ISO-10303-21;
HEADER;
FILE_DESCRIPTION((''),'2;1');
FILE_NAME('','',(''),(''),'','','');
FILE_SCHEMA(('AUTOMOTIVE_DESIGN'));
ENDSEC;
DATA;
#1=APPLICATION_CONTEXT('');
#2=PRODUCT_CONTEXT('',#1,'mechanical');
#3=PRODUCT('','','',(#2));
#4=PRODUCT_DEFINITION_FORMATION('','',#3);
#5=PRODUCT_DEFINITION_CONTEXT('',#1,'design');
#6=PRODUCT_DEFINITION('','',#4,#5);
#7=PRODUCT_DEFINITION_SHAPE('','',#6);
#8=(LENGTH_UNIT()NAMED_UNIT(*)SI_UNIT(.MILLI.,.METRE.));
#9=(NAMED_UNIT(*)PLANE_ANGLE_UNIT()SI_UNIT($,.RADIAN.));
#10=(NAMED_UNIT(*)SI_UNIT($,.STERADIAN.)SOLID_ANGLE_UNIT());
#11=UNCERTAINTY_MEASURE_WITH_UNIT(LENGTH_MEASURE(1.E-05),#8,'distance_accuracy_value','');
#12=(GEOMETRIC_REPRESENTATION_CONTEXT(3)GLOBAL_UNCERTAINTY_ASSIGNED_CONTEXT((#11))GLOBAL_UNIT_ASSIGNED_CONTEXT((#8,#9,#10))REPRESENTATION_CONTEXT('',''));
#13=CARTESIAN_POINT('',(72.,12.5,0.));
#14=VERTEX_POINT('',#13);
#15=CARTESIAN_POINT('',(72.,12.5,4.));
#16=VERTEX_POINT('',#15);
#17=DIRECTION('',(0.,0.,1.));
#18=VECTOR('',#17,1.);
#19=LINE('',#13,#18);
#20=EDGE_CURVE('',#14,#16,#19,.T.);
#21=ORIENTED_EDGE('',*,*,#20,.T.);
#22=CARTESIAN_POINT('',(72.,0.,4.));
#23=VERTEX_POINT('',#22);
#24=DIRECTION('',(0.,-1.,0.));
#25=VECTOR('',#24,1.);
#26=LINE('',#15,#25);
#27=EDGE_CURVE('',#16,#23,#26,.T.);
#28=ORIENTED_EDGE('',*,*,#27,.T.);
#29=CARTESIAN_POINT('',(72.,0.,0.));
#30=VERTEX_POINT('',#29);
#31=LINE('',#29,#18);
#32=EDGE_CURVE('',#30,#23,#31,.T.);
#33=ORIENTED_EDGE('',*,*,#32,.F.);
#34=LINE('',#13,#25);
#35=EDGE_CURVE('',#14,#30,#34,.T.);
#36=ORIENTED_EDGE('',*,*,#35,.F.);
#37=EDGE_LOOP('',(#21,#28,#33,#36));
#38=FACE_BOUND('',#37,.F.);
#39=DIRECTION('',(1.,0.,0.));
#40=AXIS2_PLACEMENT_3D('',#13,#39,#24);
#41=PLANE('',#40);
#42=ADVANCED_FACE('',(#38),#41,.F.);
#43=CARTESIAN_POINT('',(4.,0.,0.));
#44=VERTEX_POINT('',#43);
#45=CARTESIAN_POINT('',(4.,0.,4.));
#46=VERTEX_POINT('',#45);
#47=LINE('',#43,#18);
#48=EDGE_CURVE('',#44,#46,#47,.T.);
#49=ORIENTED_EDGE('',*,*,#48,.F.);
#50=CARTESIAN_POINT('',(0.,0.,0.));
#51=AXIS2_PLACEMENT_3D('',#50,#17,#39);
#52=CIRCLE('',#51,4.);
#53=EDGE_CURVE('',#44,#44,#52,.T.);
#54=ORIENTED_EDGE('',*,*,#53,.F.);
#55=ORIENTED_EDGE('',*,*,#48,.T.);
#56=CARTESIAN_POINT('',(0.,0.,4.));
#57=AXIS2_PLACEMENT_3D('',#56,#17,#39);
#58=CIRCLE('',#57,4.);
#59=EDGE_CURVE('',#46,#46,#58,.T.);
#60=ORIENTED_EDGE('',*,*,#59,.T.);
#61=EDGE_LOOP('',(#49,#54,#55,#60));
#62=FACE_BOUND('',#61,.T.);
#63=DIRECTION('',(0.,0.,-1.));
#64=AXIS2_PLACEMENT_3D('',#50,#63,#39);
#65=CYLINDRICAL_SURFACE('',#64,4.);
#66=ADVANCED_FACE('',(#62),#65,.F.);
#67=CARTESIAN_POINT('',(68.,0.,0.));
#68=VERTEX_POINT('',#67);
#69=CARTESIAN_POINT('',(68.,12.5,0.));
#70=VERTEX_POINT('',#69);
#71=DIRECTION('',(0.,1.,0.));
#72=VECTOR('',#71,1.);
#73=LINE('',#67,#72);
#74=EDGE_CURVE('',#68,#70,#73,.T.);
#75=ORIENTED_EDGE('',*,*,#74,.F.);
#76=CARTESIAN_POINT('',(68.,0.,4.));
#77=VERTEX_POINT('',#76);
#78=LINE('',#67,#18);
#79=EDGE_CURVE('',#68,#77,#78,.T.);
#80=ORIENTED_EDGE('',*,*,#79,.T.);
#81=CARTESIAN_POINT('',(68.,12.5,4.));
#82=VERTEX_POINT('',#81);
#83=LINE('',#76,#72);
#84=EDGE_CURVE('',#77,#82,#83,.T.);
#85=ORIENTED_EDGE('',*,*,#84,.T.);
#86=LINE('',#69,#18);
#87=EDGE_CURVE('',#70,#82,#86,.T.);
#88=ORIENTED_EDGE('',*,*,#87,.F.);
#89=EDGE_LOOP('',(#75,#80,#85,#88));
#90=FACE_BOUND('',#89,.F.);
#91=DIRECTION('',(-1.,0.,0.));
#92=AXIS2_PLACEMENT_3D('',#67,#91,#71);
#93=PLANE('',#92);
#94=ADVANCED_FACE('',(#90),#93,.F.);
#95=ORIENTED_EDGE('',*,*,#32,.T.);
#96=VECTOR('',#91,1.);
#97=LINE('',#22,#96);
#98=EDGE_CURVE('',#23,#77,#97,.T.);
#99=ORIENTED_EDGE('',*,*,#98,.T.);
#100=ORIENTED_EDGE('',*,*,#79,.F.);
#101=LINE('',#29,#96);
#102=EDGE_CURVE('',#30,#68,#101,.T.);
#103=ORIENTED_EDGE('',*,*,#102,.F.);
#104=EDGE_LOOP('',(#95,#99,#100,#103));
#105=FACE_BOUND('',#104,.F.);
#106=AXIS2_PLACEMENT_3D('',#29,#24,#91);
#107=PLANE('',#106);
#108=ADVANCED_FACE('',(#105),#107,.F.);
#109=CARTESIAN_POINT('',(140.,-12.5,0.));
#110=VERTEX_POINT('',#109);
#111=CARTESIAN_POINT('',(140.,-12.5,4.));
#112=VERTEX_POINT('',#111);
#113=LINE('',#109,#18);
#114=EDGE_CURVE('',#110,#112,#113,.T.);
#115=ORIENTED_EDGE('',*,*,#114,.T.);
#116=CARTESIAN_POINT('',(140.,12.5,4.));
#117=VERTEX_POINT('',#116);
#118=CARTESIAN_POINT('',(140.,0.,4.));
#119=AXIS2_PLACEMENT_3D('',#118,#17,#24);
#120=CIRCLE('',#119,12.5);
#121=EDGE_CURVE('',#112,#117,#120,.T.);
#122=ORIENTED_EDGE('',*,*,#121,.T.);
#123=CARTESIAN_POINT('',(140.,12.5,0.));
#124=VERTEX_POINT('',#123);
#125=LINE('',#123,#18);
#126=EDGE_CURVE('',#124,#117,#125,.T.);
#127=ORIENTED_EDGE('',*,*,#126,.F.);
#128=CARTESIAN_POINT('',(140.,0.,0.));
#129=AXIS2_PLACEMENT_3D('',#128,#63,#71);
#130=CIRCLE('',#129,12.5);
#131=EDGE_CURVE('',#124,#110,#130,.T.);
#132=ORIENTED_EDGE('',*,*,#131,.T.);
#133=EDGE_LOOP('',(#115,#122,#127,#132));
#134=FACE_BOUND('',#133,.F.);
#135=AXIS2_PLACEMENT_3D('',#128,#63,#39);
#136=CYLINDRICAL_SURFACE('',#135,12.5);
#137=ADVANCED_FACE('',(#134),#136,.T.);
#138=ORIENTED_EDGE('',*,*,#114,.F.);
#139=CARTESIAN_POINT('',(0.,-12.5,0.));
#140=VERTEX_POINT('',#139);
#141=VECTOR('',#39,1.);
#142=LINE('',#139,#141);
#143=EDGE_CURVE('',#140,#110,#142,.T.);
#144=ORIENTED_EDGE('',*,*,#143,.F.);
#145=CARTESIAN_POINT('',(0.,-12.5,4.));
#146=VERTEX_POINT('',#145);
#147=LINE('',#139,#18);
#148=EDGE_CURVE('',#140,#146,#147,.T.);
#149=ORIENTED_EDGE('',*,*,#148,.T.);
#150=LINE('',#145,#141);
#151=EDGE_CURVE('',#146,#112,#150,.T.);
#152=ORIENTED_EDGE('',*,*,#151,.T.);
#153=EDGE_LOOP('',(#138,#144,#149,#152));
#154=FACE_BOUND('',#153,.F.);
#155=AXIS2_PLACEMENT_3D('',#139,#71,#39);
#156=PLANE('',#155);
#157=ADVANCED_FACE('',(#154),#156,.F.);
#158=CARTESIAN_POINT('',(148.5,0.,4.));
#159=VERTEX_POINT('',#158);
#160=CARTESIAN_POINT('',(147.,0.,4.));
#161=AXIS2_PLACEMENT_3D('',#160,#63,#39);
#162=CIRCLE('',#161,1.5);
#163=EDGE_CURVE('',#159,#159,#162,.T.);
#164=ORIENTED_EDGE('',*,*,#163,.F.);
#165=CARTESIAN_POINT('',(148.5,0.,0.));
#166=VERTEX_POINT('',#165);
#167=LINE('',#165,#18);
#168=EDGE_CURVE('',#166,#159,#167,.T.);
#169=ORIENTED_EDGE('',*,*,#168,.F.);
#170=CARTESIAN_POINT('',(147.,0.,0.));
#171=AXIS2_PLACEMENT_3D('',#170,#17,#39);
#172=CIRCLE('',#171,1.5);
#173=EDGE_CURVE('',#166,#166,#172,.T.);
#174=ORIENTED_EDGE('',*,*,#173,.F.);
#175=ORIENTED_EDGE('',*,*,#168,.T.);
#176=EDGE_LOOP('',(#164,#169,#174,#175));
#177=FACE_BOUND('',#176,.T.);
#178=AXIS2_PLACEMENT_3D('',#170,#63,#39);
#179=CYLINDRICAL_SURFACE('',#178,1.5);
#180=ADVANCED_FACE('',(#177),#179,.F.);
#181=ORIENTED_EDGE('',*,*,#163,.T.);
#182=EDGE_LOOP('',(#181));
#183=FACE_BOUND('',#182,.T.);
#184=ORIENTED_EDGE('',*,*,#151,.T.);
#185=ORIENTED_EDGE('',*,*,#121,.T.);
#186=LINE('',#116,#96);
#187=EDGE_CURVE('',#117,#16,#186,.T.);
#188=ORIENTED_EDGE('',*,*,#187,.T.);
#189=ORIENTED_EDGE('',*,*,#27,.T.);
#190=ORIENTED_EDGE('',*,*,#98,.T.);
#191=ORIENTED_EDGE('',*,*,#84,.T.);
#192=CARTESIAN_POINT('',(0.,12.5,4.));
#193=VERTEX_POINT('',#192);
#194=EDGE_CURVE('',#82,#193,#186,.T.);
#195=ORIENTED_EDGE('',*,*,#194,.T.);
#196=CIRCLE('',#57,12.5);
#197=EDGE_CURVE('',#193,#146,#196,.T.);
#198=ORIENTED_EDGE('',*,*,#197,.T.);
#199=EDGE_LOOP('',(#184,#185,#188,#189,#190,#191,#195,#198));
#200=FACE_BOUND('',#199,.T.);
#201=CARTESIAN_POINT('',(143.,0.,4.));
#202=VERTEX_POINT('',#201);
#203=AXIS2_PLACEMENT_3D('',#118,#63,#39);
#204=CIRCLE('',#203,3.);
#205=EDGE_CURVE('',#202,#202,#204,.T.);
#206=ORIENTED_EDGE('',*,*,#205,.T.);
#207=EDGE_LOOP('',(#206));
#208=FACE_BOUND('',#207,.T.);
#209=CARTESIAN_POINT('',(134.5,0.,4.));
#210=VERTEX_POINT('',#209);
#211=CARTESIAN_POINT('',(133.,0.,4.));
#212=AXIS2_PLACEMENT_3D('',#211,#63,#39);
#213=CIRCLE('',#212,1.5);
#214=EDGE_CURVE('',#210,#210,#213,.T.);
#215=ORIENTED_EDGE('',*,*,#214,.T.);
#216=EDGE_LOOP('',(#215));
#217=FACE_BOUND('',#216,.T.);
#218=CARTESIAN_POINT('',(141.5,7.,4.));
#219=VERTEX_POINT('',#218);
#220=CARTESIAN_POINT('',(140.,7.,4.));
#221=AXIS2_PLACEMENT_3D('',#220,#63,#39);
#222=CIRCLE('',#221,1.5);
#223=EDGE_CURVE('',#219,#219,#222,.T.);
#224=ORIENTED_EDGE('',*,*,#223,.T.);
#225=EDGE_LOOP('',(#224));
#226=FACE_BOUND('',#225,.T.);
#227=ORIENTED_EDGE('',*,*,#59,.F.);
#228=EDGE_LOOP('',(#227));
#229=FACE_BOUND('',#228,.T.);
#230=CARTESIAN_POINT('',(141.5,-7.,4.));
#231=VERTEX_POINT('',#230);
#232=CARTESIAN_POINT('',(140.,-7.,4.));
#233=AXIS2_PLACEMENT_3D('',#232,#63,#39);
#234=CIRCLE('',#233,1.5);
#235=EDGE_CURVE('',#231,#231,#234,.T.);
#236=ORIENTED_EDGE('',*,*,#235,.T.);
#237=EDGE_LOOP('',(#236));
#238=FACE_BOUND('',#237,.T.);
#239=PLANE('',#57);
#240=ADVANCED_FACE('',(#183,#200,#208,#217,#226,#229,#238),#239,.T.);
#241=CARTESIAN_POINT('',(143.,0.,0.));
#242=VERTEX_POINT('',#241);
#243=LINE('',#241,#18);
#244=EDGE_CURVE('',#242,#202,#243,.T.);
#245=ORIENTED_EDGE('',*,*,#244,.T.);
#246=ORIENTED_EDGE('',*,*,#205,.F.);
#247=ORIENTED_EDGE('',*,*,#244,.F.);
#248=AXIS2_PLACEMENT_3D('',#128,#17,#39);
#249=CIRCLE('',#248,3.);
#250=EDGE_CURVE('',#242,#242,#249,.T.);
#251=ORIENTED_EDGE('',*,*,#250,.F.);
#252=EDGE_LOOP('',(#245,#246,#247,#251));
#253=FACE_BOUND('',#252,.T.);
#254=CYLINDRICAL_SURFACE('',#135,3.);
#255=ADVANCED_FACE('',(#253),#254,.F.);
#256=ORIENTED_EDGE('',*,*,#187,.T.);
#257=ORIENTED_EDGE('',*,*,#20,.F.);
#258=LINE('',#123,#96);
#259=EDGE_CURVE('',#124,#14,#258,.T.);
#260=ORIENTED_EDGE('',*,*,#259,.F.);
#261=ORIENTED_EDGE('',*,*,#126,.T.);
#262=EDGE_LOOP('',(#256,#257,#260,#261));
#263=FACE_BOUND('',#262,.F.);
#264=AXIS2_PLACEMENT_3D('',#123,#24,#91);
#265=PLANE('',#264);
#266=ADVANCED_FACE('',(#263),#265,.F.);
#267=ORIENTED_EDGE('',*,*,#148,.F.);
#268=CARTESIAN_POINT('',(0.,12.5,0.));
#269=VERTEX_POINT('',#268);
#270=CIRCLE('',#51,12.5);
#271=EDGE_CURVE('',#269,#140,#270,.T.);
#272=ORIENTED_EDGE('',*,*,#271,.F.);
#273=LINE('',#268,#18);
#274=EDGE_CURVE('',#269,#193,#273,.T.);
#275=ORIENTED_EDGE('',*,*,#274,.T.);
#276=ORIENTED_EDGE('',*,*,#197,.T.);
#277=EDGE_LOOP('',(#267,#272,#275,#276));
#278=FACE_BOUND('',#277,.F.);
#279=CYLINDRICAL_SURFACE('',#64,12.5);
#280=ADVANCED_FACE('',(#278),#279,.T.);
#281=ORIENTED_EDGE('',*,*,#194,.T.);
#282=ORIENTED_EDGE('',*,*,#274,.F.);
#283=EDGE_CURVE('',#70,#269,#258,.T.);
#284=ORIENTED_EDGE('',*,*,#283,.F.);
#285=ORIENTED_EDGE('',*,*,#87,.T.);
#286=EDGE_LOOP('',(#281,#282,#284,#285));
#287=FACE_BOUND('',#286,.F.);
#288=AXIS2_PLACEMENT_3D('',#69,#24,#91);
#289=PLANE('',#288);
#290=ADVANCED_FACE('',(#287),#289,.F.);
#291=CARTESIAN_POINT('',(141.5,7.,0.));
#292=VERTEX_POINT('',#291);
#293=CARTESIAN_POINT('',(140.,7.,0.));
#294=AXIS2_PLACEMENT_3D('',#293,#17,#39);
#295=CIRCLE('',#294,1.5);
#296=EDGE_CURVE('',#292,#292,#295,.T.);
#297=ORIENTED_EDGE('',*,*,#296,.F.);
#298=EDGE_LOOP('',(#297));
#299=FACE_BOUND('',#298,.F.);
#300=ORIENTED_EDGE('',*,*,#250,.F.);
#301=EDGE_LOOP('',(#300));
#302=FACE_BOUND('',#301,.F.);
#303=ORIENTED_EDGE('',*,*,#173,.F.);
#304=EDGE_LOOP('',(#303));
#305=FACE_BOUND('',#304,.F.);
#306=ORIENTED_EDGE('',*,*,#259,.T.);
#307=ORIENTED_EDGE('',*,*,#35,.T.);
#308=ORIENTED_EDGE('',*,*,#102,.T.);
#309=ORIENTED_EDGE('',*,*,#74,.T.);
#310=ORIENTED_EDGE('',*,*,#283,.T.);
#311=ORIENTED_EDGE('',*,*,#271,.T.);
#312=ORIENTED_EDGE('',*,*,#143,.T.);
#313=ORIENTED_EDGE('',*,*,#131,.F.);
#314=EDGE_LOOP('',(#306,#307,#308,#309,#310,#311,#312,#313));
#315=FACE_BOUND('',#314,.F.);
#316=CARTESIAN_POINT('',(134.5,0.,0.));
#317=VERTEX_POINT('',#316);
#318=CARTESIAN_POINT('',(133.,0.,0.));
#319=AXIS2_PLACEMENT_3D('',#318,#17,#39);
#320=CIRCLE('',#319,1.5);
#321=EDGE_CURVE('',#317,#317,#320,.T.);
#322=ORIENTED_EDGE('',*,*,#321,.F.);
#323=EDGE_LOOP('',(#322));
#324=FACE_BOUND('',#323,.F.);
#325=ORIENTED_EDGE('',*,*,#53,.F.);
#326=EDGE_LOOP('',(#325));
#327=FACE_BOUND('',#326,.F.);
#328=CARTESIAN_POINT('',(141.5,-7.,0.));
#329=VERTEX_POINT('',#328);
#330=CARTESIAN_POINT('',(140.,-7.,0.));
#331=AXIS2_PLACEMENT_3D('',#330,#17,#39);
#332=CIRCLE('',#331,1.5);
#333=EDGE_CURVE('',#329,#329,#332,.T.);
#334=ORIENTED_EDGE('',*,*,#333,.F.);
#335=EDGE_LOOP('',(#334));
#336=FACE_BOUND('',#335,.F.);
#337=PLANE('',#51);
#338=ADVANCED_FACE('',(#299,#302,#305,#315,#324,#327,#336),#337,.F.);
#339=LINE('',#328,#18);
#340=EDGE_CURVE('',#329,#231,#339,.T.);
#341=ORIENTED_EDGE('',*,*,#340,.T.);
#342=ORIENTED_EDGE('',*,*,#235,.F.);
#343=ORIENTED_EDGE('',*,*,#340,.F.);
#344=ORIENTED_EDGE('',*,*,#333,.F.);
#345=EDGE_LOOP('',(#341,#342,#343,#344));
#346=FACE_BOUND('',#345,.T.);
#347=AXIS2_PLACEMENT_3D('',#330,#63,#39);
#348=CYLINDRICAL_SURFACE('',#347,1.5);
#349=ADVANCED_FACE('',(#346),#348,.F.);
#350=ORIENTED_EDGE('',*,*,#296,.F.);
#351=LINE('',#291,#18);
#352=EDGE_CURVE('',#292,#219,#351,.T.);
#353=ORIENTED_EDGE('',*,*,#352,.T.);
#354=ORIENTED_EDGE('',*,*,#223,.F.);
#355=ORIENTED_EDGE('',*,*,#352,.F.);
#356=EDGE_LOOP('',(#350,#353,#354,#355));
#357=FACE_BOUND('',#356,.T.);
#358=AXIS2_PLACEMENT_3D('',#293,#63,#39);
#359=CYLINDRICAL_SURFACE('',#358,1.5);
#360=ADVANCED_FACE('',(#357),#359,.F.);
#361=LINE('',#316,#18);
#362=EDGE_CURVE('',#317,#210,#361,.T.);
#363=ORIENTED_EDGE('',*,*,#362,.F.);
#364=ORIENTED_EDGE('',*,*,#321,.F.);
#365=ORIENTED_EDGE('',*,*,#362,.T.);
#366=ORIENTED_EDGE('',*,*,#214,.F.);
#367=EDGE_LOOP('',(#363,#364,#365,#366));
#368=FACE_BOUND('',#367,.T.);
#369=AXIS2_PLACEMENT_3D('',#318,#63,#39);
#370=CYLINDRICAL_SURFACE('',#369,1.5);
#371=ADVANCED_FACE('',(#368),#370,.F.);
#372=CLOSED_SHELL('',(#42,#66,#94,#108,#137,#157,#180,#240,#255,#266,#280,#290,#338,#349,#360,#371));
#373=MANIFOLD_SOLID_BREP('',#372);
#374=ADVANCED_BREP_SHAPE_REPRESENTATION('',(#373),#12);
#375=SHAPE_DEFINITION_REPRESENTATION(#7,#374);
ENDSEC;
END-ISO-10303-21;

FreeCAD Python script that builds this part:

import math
import FreeCAD as App
import Part
import Sketcher
Q = App.Units.Quantity

doc = App.newDocument("Part")
params = doc.addObject("Spreadsheet::Sheet", "Params")
for row, (alias, value) in enumerate([
    ("sketch1_diameter", "8 mm"),
    ("sketch1_diameter2", "3 mm"),
    ("sketch1_diameter3", "6 mm"),
    ("sketch1_radius", "12.5 mm"),
    ("sketch1_width", "140 mm"),
    ("pad1_length", "4 mm"),
], start=1):
    params.set(f"A{row}", alias)
    params.set(f"B{row}", "=" + value)
    params.setAlias(f"B{row}", alias)

body = doc.addObject("PartDesign::Body", "Body")

sketch1 = body.newObject("Sketcher::SketchObject", "Sketch")
sketch1.AttachmentSupport = (doc.getObject("XY_Plane"), [""])
sketch1.MapMode = "FlatFace"
sketch1.addGeometry(Part.LineSegment(App.Vector(0, -12.5, 0), App.Vector(140, -12.5, 0)), False)
sketch1.addGeometry(Part.ArcOfCircle(Part.Circle(App.Vector(140, 0, 0), App.Vector(0, 0, 1), 12.5), math.radians(-90), math.radians(90)), False)
sketch1.addGeometry(Part.LineSegment(App.Vector(140, 12.5, 0), App.Vector(72, 12.5, 0)), False)
sketch1.addGeometry(Part.LineSegment(App.Vector(72, 12.5, 0), App.Vector(72, 0, 0)), False)
sketch1.addGeometry(Part.LineSegment(App.Vector(72, 0, 0), App.Vector(68, 0, 0)), False)
sketch1.addGeometry(Part.LineSegment(App.Vector(68, 0, 0), App.Vector(68, 12.5, 0)), False)
sketch1.addGeometry(Part.LineSegment(App.Vector(68, 12.5, 0), App.Vector(0, 12.5, 0)), False)
sketch1.addGeometry(Part.ArcOfCircle(Part.Circle(App.Vector(0, 0, 0), App.Vector(0, 0, 1), 12.5), math.radians(90), math.radians(270)), False)
sketch1.addGeometry(Part.Circle(App.Vector(0, 0, 0), App.Vector(0, 0, 1), 4), False)
sketch1.addGeometry(Part.Circle(App.Vector(140, 7, 0), App.Vector(0, 0, 1), 1.5), False)
sketch1.addGeometry(Part.Circle(App.Vector(133, 0, 0), App.Vector(0, 0, 1), 1.5), False)
sketch1.addGeometry(Part.Circle(App.Vector(140, -7, 0), App.Vector(0, 0, 1), 1.5), False)
sketch1.addGeometry(Part.Circle(App.Vector(147, 0, 0), App.Vector(0, 0, 1), 1.5), False)
sketch1.addGeometry(Part.Circle(App.Vector(140, 0, 0), App.Vector(0, 0, 1), 3), False)
sketch1.addConstraint(Sketcher.Constraint("Tangent", 0, 2, 1, 1))
sketch1.addConstraint(Sketcher.Constraint("Tangent", 1, 2, 2, 1))
sketch1.addConstraint(Sketcher.Constraint("Coincident", 2, 2, 3, 1))
sketch1.addConstraint(Sketcher.Constraint("Coincident", 3, 2, 4, 1))
sketch1.addConstraint(Sketcher.Constraint("Coincident", 4, 2, 5, 1))
sketch1.addConstraint(Sketcher.Constraint("Coincident", 5, 2, 6, 1))
sketch1.addConstraint(Sketcher.Constraint("Tangent", 6, 2, 7, 1))
sketch1.addConstraint(Sketcher.Constraint("Tangent", 7, 2, 0, 1))
sketch1.addConstraint(Sketcher.Constraint("Horizontal", 0))
sketch1.addConstraint(Sketcher.Constraint("Horizontal", 2))
sketch1.addConstraint(Sketcher.Constraint("Vertical", 3))
sketch1.addConstraint(Sketcher.Constraint("Horizontal", 4))
sketch1.addConstraint(Sketcher.Constraint("Vertical", 5))
sketch1.addConstraint(Sketcher.Constraint("Horizontal", 6))
sketch1.addConstraint(Sketcher.Constraint("Coincident", 7, 3, -1, 1))
sketch1.addConstraint(Sketcher.Constraint("Coincident", 8, 3, -1, 1))
sketch1.addConstraint(Sketcher.Constraint("Coincident", 13, 3, 1, 3))
sketch1.addConstraint(Sketcher.Constraint("Equal", 1, 7))
sketch1.addConstraint(Sketcher.Constraint("Equal", 9, 10))
sketch1.addConstraint(Sketcher.Constraint("Equal", 10, 11))
sketch1.addConstraint(Sketcher.Constraint("Equal", 11, 12))
sketch1.addConstraint(Sketcher.Constraint("Symmetric", 9, 3, 11, 3, -1))
sketch1.addConstraint(Sketcher.Constraint("PointOnObject", 10, 3, -1))
sketch1.addConstraint(Sketcher.Constraint("PointOnObject", 12, 3, -1))
sketch1.addConstraint(Sketcher.Constraint("PointOnObject", 3, 2, -1))
sketch1.addConstraint(Sketcher.Constraint("Vertical", 1, 3, 9, 3))
sketch1.addConstraint(Sketcher.Constraint("Equal", 2, 6))
sketch1.addConstraint(Sketcher.Constraint("Diameter", 8, Q("8 mm")))
sketch1.addConstraint(Sketcher.Constraint("Diameter", 9, Q("3 mm")))
sketch1.addConstraint(Sketcher.Constraint("Diameter", 13, Q("6 mm")))
sketch1.addConstraint(Sketcher.Constraint("Radius", 1, Q("12.5 mm")))
sketch1.addConstraint(Sketcher.Constraint("DistanceX", 0, 1, 0, 2, Q("140 mm")))
sketch1.addConstraint(Sketcher.Constraint("DistanceX", 4, 2, 4, 1, Q("4 mm")))
sketch1.addConstraint(Sketcher.Constraint("DistanceY", 11, 3, 9, 3, Q("14 mm")))
sketch1.addConstraint(Sketcher.Constraint("DistanceX", 10, 3, 12, 3, Q("14 mm")))
sketch1.addConstraint(Sketcher.Constraint("DistanceX", -1, 1, 10, 3, Q("133 mm")))
sketch1.setExpression("Constraints[27]", "Params.sketch1_diameter")
sketch1.setExpression("Constraints[28]", "Params.sketch1_diameter2")
sketch1.setExpression("Constraints[29]", "Params.sketch1_diameter3")
sketch1.setExpression("Constraints[30]", "Params.sketch1_radius")
sketch1.setExpression("Constraints[31]", "Params.sketch1_width")
pad1 = body.newObject("PartDesign::Pad", "Pad")
pad1.Profile = sketch1
pad1.setExpression("Length", "Params.pad1_length")

doc.recompute()
